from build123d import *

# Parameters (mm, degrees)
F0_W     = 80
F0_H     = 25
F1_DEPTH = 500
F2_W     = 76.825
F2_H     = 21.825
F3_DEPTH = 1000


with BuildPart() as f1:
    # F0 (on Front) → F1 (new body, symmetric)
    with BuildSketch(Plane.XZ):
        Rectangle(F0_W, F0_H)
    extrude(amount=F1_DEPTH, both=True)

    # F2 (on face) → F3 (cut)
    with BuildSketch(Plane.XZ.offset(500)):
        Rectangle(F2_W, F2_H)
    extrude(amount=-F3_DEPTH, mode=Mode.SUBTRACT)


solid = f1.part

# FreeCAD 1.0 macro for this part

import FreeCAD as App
import Part
import Sketcher
from FreeCAD import Vector
Q = App.Units.Quantity

doc = App.newDocument("Part")
body = doc.addObject("PartDesign::Body", "Body")

# Sketch on XZ plane
sketch1 = body.newObject("Sketcher::SketchObject", "Sketch")
sketch1.AttachmentSupport = (doc.getObject("XZ_Plane"), [""])
sketch1.MapMode = "FlatFace"
sketch1.addGeometry([
    Part.LineSegment(Vector(-40, 12, 0), Vector(-40, -12, 0)),
    Part.LineSegment(Vector(-40, -12, 0), Vector(40, -12, 0)),
    Part.LineSegment(Vector(40, -12, 0), Vector(40, 12, 0)),
    Part.LineSegment(Vector(40, 12, 0), Vector(-40, 12, 0)),
], False)
sketch1.addConstraint([
    Sketcher.Constraint("Coincident", 0, 2, 1, 1),
    Sketcher.Constraint("Coincident", 1, 2, 2, 1),
    Sketcher.Constraint("Coincident", 2, 2, 3, 1),
    Sketcher.Constraint("Coincident", 3, 2, 0, 1),
    Sketcher.Constraint("Vertical", 0),
    Sketcher.Constraint("Horizontal", 1),
    Sketcher.Constraint("Vertical", 2),
    Sketcher.Constraint("Horizontal", 3),
    Sketcher.Constraint("Symmetric", 0, 2, 2, 2, -1, 1),
    Sketcher.Constraint("DistanceX", 1, 1, 1, 2, Q("80 mm")),
    Sketcher.Constraint("DistanceY", 0, 2, 0, 1, Q("25 mm")),
])
pad1 = body.newObject("PartDesign::Pad", "Pad")
pad1.Profile = sketch1
pad1.Length = 1000
pad1.Midplane = True

# Sketch on XZ plane
sketch2 = body.newObject("Sketcher::SketchObject", "Sketch001")
sketch2.AttachmentSupport = (doc.getObject("XZ_Plane"), [""])
sketch2.MapMode = "FlatFace"
sketch2.AttachmentOffset = App.Placement(Vector(0, 0, 500), App.Rotation())
sketch2.addGeometry([
    Part.LineSegment(Vector(-38, 11, 0), Vector(-38, -11, 0)),
    Part.LineSegment(Vector(-38, -11, 0), Vector(38, -11, 0)),
    Part.LineSegment(Vector(38, -11, 0), Vector(38, 11, 0)),
    Part.LineSegment(Vector(38, 11, 0), Vector(-38, 11, 0)),
], False)
sketch2.addConstraint([
    Sketcher.Constraint("Coincident", 0, 2, 1, 1),
    Sketcher.Constraint("Coincident", 1, 2, 2, 1),
    Sketcher.Constraint("Coincident", 2, 2, 3, 1),
    Sketcher.Constraint("Coincident", 3, 2, 0, 1),
    Sketcher.Constraint("Vertical", 0),
    Sketcher.Constraint("Horizontal", 1),
    Sketcher.Constraint("Vertical", 2),
    Sketcher.Constraint("Horizontal", 3),
    Sketcher.Constraint("Symmetric", 0, 2, 2, 2, -1, 1),
    Sketcher.Constraint("DistanceX", 1, 1, 1, 2, Q("76.825 mm")),
    Sketcher.Constraint("DistanceY", 0, 2, 0, 1, Q("21.825 mm")),
])
pocket1 = body.newObject("PartDesign::Pocket", "Pocket")
pocket1.Profile = sketch2
pocket1.Length = 1000

doc.recompute()
